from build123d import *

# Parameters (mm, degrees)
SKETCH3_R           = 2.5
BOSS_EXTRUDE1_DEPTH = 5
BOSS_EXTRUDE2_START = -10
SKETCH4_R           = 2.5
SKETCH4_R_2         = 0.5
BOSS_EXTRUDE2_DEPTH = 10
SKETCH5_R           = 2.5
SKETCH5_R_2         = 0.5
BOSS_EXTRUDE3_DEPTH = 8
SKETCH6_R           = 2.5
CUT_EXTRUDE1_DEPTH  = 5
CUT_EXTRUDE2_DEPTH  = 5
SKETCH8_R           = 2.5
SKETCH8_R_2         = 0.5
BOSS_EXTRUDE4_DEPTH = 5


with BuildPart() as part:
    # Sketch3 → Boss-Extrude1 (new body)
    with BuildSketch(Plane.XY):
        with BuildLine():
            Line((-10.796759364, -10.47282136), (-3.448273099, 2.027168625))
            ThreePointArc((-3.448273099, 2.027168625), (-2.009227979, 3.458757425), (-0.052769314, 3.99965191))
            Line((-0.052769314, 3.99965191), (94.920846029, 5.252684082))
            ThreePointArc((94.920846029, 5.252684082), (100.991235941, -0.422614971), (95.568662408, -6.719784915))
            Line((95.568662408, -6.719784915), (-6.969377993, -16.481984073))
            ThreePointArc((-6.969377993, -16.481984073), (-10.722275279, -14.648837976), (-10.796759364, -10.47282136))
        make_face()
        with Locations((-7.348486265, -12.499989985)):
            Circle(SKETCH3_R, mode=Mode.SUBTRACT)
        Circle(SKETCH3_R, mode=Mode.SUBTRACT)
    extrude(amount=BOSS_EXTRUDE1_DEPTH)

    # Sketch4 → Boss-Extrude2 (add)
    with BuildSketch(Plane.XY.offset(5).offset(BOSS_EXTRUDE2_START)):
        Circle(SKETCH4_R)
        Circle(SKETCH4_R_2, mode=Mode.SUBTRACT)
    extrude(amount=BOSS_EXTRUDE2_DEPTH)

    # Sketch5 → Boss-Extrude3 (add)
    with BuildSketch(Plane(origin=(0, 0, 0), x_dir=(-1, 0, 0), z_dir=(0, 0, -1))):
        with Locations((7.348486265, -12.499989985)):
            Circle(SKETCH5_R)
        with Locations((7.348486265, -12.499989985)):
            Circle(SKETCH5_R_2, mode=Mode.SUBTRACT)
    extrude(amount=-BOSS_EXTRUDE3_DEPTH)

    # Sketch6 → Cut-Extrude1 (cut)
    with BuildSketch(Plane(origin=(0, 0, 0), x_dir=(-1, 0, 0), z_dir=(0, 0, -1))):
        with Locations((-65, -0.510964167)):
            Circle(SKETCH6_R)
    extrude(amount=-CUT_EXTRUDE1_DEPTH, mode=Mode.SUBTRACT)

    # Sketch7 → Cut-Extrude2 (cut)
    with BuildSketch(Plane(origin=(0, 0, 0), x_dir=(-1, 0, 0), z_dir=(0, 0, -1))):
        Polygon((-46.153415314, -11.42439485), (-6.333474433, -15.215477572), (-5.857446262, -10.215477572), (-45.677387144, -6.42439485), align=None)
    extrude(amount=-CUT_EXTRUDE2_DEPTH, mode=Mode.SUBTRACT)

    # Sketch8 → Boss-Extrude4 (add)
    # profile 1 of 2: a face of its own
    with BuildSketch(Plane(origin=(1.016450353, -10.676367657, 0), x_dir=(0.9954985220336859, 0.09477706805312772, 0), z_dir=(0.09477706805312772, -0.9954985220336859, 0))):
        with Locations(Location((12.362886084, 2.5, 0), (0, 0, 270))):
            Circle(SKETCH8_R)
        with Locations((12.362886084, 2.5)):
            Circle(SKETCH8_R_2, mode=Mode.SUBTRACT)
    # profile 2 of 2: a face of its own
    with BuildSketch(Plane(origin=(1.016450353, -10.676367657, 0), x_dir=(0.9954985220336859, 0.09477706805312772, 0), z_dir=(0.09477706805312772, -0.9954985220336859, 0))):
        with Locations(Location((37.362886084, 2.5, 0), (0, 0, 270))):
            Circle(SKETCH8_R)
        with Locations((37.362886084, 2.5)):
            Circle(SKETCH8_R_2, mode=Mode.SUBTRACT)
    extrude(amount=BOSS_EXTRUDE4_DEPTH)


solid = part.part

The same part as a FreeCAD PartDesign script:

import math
import FreeCAD as App
import Part
import Sketcher
from FreeCAD import Vector


def add_polygon(sketch, points):
    """Adds a closed chain of lines whose ends are joined by coincident constraints."""
    first, n = sketch.GeometryCount, len(points)
    for a, b in zip(points, points[1:] + points[:1]):
        sketch.addGeometry(Part.LineSegment(App.Vector(*a, 0), App.Vector(*b, 0)), False)
    for i in range(n):
        sketch.addConstraint(Sketcher.Constraint("Coincident", first + i, 2, first + (i + 1) % n, 1))

doc = App.newDocument("Part")
body = doc.addObject("PartDesign::Body", "Body")

# Sketch on XY plane
sketch1 = body.newObject("Sketcher::SketchObject", "Sketch")
sketch1.AttachmentSupport = (doc.getObject("XY_Plane"), [""])
sketch1.MapMode = "FlatFace"
sketch1.addGeometry(Part.LineSegment(Vector(-3.4, 2, 0), Vector(-10.8, -10.5, 0)), False)
sketch1.addGeometry(Part.ArcOfCircle(Part.Circle(Vector(-7.3, -12.5, 0), Vector(0, 0, 1), 4), math.radians(150), math.radians(275)), False)
sketch1.addGeometry(Part.LineSegment(Vector(-7, -16.5, 0), Vector(95.6, -6.7, 0)), False)
sketch1.addGeometry(Part.ArcOfCircle(Part.Circle(Vector(95, -0.7, 0), Vector(0, 0, 1), 6), math.radians(-85), math.radians(91)), False)
sketch1.addGeometry(Part.LineSegment(Vector(94.9, 5.3, 0), Vector(-0.1, 4, 0)), False)
sketch1.addGeometry(Part.ArcOfCircle(Part.Circle(Vector(0, 0, 0), Vector(0, 0, 1), 4), math.radians(91), math.radians(150)), False)
sketch1.addGeometry(Part.Circle(Vector(-7.3, -12.5, 0), Vector(0, 0, 1), 2.5), False)
sketch1.addGeometry(Part.Circle(Vector(0, 0, 0), Vector(0, 0, 1), 2.5), False)
sketch1.addConstraint(Sketcher.Constraint("Tangent", 0, 2, 1, 1))
sketch1.addConstraint(Sketcher.Constraint("Tangent", 1, 2, 2, 1))
sketch1.addConstraint(Sketcher.Constraint("Tangent", 2, 2, 3, 1))
sketch1.addConstraint(Sketcher.Constraint("Tangent", 3, 2, 4, 1))
sketch1.addConstraint(Sketcher.Constraint("Tangent", 4, 2, 5, 1))
sketch1.addConstraint(Sketcher.Constraint("Tangent", 5, 2, 0, 1))
sketch1.addConstraint(Sketcher.Constraint("Coincident", 5, 3, -1, 1))
sketch1.addConstraint(Sketcher.Constraint("Coincident", 7, 3, -1, 1))
sketch1.addConstraint(Sketcher.Constraint("Coincident", 6, 3, 1, 3))
sketch1.addConstraint(Sketcher.Constraint("Equal", 1, 5))
sketch1.addConstraint(Sketcher.Constraint("Equal", 6, 7))
sketch1.addConstraint(Sketcher.Constraint("Diameter", 6, 5.0))
sketch1.addConstraint(Sketcher.Constraint("Radius", 1, 4.0))
sketch1.addConstraint(Sketcher.Constraint("Radius", 3, 6.0))
sketch1.addConstraint(Sketcher.Constraint("DistanceX", -1, 1, 3, 3, 95.0))
sketch1.addConstraint(Sketcher.Constraint("Distance", 0, 14.5))
sketch1.addConstraint(Sketcher.Constraint("Distance", 2, 103.0017))
sketch1.addConstraint(Sketcher.Constraint("DistanceY", 1, 2, 2, 2, 9.762199))
pad1 = body.newObject("PartDesign::Pad", "Pad")
pad1.Profile = sketch1
pad1.Length = 5

# Sketch on XY plane
sketch2 = body.newObject("Sketcher::SketchObject", "Sketch001")
sketch2.AttachmentSupport = (doc.getObject("XY_Plane"), [""])
sketch2.MapMode = "FlatFace"
sketch2.AttachmentOffset = App.Placement(Vector(0, 0, -5), App.Rotation())
sketch2.addGeometry(Part.Circle(Vector(0, 0, 0), Vector(0, 0, 1), 2.5), False)
sketch2.addGeometry(Part.Circle(Vector(0, 0, 0), Vector(0, 0, 1), 0.5), False)
sketch2.addConstraint(Sketcher.Constraint("Coincident", 0, 3, -1, 1))
sketch2.addConstraint(Sketcher.Constraint("Coincident", 1, 3, -1, 1))
sketch2.addConstraint(Sketcher.Constraint("Diameter", 0, 5.0))
sketch2.addConstraint(Sketcher.Constraint("Diameter", 1, 1.0))
pad2 = body.newObject("PartDesign::Pad", "Pad001")
pad2.Profile = sketch2
pad2.Length = 10

# Sketch on XY plane
sketch3 = body.newObject("Sketcher::SketchObject", "Sketch002")
sketch3.AttachmentSupport = (doc.getObject("XY_Plane"), [""])
sketch3.MapMode = "FlatFace"
sketch3.addGeometry(Part.Circle(Vector(-7.3, -12.5, 0), Vector(0, 0, 1), 2.5), False)
sketch3.addGeometry(Part.Circle(Vector(-7.3, -12.5, 0), Vector(0, 0, 1), 0.5), False)
sketch3.addConstraint(Sketcher.Constraint("Coincident", 1, 3, 0, 3))
sketch3.addConstraint(Sketcher.Constraint("Diameter", 0, 5.0))
sketch3.addConstraint(Sketcher.Constraint("Diameter", 1, 1.0))
sketch3.addConstraint(Sketcher.Constraint("DistanceY", 0, 3, -1, 1, 12.49999))
sketch3.addConstraint(Sketcher.Constraint("DistanceX", 0, 3, -1, 1, 7.348486))
pad3 = body.newObject("PartDesign::Pad", "Pad002")
pad3.Profile = sketch3
pad3.Length = 8

# Sketch on XY plane
sketch4 = body.newObject("Sketcher::SketchObject", "Sketch003")
sketch4.AttachmentSupport = (doc.getObject("XY_Plane"), [""])
sketch4.MapMode = "FlatFace"
sketch4.addGeometry(Part.Circle(Vector(65, -0.5, 0), Vector(0, 0, 1), 2.5), False)
sketch4.addConstraint(Sketcher.Constraint("Diameter", 0, 5.0))
sketch4.addConstraint(Sketcher.Constraint("DistanceX", -1, 1, 0, 3, 65.0))
sketch4.addConstraint(Sketcher.Constraint("DistanceY", 0, 3, -1, 1, 0.510964))
pocket1 = body.newObject("PartDesign::Pocket", "Pocket")
pocket1.Profile = sketch4
pocket1.Length = 5
pocket1.Reversed = True

# Sketch on XY plane
sketch5 = body.newObject("Sketcher::SketchObject", "Sketch004")
sketch5.AttachmentSupport = (doc.getObject("XY_Plane"), [""])
sketch5.MapMode = "FlatFace"
add_polygon(sketch5, [(46, -11), (6, -15), (6, -10), (46, -6)])  # lines 0-3
sketch5.addConstraint(Sketcher.Constraint("Perpendicular", 0, 1))
sketch5.addConstraint(Sketcher.Constraint("Perpendicular", 1, 2))
sketch5.addConstraint(Sketcher.Constraint("Perpendicular", 2, 3))
sketch5.addConstraint(Sketcher.Constraint("Distance", 0, 40.0))
sketch5.addConstraint(Sketcher.Constraint("DistanceY", 0, 2, 1, 2, 5.0))
sketch5.addConstraint(Sketcher.Constraint("Distance", 1, 5.022609))
sketch5.addConstraint(Sketcher.Constraint("DistanceX", -1, 1, 0, 2, 6.333474))
sketch5.addConstraint(Sketcher.Constraint("DistanceY", 0, 2, -1, 1, 15.215478))
pocket2 = body.newObject("PartDesign::Pocket", "Pocket001")
pocket2.Profile = sketch5
pocket2.Length = 5
pocket2.Reversed = True

# Sketch on an angled plane
sketch6 = body.newObject("Sketcher::SketchObject", "Sketch005")
sketch6.Placement = App.Placement(Vector(1.01645, -10.676368, 0), App.Rotation(Vector(0.995498522, 0.094777068, 0), Vector(0, 0, 1), Vector(0.094777068, -0.995498522, 0), "ZXY"))
sketch6.addGeometry(Part.Circle(Vector(12.4, 2.5, 0), Vector(0, 0, 1), 2.5), False)
sketch6.addGeometry(Part.Circle(Vector(12.4, 2.5, 0), Vector(0, 0, 1), 0.5), False)
sketch6.addGeometry(Part.Circle(Vector(37.4, 2.5, 0), Vector(0, 0, 1), 2.5), False)
sketch6.addGeometry(Part.Circle(Vector(37.4, 2.5, 0), Vector(0, 0, 1), 0.5), False)
sketch6.addConstraint(Sketcher.Constraint("Coincident", 1, 3, 0, 3))
sketch6.addConstraint(Sketcher.Constraint("Coincident", 3, 3, 2, 3))
sketch6.addConstraint(Sketcher.Constraint("Equal", 0, 2))
sketch6.addConstraint(Sketcher.Constraint("Equal", 1, 3))
sketch6.addConstraint(Sketcher.Constraint("Horizontal", 1, 3, 2, 3))
sketch6.addConstraint(Sketcher.Constraint("Diameter", 0, 5.0))
sketch6.addConstraint(Sketcher.Constraint("Diameter", 1, 1.0))
sketch6.addConstraint(Sketcher.Constraint("DistanceX", 0, 3, 2, 3, 25.0))
sketch6.addConstraint(Sketcher.Constraint("DistanceY", -1, 1, 0, 3, 2.5))
sketch6.addConstraint(Sketcher.Constraint("DistanceX", -1, 1, 0, 3, 12.362886))
pad4 = body.newObject("PartDesign::Pad", "Pad003")
pad4.Profile = sketch6
pad4.Length = 5

doc.recompute()
